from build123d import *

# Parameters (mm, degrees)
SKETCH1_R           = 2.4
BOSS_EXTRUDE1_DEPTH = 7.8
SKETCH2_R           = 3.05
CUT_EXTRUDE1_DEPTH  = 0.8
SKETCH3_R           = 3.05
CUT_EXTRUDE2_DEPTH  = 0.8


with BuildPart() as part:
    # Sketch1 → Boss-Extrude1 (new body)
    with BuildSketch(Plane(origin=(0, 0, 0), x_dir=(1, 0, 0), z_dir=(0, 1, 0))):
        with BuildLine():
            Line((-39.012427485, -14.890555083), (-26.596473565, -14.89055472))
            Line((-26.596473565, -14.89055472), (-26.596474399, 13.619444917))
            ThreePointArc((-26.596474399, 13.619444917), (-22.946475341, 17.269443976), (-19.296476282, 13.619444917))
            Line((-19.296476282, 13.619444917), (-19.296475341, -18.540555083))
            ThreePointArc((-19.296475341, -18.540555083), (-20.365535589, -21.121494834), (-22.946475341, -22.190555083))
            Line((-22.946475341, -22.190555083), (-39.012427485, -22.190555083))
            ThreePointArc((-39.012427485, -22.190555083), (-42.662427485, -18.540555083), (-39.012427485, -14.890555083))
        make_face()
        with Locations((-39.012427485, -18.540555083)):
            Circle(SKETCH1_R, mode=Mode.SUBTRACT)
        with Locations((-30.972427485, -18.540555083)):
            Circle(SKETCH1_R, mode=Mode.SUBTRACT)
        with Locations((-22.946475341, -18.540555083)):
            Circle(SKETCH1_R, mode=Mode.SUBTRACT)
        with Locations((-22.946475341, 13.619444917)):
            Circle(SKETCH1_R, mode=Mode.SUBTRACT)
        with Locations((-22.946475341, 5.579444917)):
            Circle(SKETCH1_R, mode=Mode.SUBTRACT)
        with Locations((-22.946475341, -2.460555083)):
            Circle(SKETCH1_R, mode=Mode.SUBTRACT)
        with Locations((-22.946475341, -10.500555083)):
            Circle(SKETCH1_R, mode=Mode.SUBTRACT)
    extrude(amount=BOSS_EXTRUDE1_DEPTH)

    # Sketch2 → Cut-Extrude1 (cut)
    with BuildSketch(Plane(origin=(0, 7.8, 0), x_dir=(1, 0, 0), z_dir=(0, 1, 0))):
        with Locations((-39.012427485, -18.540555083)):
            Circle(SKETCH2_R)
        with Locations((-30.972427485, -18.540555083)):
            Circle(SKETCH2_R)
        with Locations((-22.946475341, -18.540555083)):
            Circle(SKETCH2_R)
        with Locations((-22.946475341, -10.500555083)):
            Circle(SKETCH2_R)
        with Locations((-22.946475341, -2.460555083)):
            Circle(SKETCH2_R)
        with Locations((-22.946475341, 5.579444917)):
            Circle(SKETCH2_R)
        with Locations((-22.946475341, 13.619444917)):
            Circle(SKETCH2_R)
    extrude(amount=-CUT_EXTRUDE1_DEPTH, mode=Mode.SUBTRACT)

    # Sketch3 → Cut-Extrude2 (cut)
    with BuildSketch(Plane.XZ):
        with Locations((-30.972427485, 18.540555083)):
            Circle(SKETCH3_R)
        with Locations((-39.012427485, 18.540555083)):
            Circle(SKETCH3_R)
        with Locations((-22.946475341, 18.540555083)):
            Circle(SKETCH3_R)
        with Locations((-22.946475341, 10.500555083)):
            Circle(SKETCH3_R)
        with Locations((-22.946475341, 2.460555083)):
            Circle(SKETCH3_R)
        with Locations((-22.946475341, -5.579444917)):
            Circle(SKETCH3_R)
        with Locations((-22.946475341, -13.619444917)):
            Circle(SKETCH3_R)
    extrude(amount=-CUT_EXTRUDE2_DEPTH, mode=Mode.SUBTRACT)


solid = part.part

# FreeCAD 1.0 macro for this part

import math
import FreeCAD as App
import Part
import Sketcher

doc = App.newDocument("Part")
body = doc.addObject("PartDesign::Body", "Body")

# Sketch on XZ plane
sketch1 = doc.addObject("Sketcher::SketchObject", "Sketch")
body.addObject(sketch1)
sketch1.AttachmentSupport = (doc.XZ_Plane, [""])
sketch1.MapMode = "FlatFace"
sketch1.addGeometry([
    Part.LineSegment(App.Vector(-26.6, 14.9, 0), App.Vector(-39, 14.9, 0)),  # 0
    Part.ArcOfCircle(Part.Circle(App.Vector(-39, 18.5, 0), App.Vector(0, 0, 1), 3.6), math.radians(90), math.radians(270)),  # 1
    Part.LineSegment(App.Vector(-39, 22.2, 0), App.Vector(-22.9, 22.2, 0)),  # 2
    Part.ArcOfCircle(Part.Circle(App.Vector(-22.9, 18.5, 0), App.Vector(0, 0, 1), 3.6), math.radians(0), math.radians(90)),  # 3
    Part.LineSegment(App.Vector(-19.3, 18.5, 0), App.Vector(-19.3, -13.6, 0)),  # 4
    Part.ArcOfCircle(Part.Circle(App.Vector(-22.9, -13.6, 0), App.Vector(0, 0, 1), 3.6), math.radians(180), math.radians(360)),  # 5
    Part.LineSegment(App.Vector(-26.6, -13.6, 0), App.Vector(-26.6, 14.9, 0)),  # 6
    Part.Circle(App.Vector(-22.9, 18.5, 0), App.Vector(0, 0, 1), 2.4),  # 7
    Part.Circle(App.Vector(-31, 18.5, 0), App.Vector(0, 0, 1), 2.4),  # 8
    Part.Circle(App.Vector(-22.9, 10.5, 0), App.Vector(0, 0, 1), 2.4),  # 9
    Part.Circle(App.Vector(-39, 18.5, 0), App.Vector(0, 0, 1), 2.4),  # 10
    Part.Circle(App.Vector(-22.9, 2.5, 0), App.Vector(0, 0, 1), 2.4),  # 11
    Part.Circle(App.Vector(-22.9, -5.6, 0), App.Vector(0, 0, 1), 2.4),  # 12
    Part.Circle(App.Vector(-22.9, -13.6, 0), App.Vector(0, 0, 1), 2.4),  # 13
], False)
sketch1.addConstraint([
    Sketcher.Constraint("Tangent", 0, 2, 1, 2),
    Sketcher.Constraint("Tangent", 1, 1, 2, 1),
    Sketcher.Constraint("Tangent", 2, 2, 3, 2),
    Sketcher.Constraint("Tangent", 3, 1, 4, 1),
    Sketcher.Constraint("Tangent", 4, 2, 5, 2),
    Sketcher.Constraint("Tangent", 5, 1, 6, 1),
    Sketcher.Constraint("Coincident", 6, 2, 0, 1),
    Sketcher.Constraint("Horizontal", 0),
    Sketcher.Constraint("Horizontal", 2),
    Sketcher.Constraint("Vertical", 4),
    Sketcher.Constraint("Vertical", 6),
    Sketcher.Constraint("Coincident", 7, 3, 3, 3),
    Sketcher.Constraint("Coincident", 10, 3, 1, 3),
    Sketcher.Constraint("Coincident", 13, 3, 5, 3),
    Sketcher.Constraint("Equal", 1, 3),
    Sketcher.Constraint("Equal", 3, 5),
    Sketcher.Constraint("Equal", 7, 8),
    Sketcher.Constraint("Equal", 8, 9),
    Sketcher.Constraint("Equal", 9, 10),
    Sketcher.Constraint("Equal", 10, 11),
    Sketcher.Constraint("Equal", 11, 12),
    Sketcher.Constraint("Equal", 12, 13),
    Sketcher.Constraint("Horizontal", 7, 3, 8, 3),
    Sketcher.Constraint("Vertical", 7, 3, 9, 3),
    Sketcher.Constraint("Vertical", 9, 3, 11, 3),
    Sketcher.Constraint("Vertical", 11, 3, 12, 3),
    Sketcher.Constraint("Diameter", 7, 4.8),
    Sketcher.Constraint("Radius", 1, 3.65),
    Sketcher.Constraint("DistanceY", 4, 2, 4, 1, 32.16),
    Sketcher.Constraint("DistanceX", 1, 3, 8, 3, 8.04),
    Sketcher.Constraint("DistanceY", 9, 3, 7, 3, 8.04),
    Sketcher.Constraint("DistanceY", 11, 3, 9, 3, 8.04),
    Sketcher.Constraint("DistanceY", 12, 3, 11, 3, 8.04),
    Sketcher.Constraint("DistanceX", 0, 2, 0, 1, 12.415954),
    Sketcher.Constraint("DistanceX", 1, 3, -1, 1, 39.012427),
    Sketcher.Constraint("DistanceY", -1, 1, 1, 3, 18.540555),
])
pad1 = doc.addObject("PartDesign::Pad", "Pad")
body.addObject(pad1)
pad1.Profile = sketch1
pad1.Length = 7.8
pad1.Reversed = True

# Sketch on XZ plane
sketch2 = doc.addObject("Sketcher::SketchObject", "Sketch001")
body.addObject(sketch2)
sketch2.AttachmentSupport = (doc.XZ_Plane, [""])
sketch2.MapMode = "FlatFace"
sketch2.AttachmentOffset = App.Placement(App.Vector(0, 0, -7.8), App.Rotation())
sketch2.addGeometry([
    Part.Circle(App.Vector(-39, 18.5, 0), App.Vector(0, 0, 1), 3),  # 0
    Part.Circle(App.Vector(-31, 18.5, 0), App.Vector(0, 0, 1), 3),  # 1
    Part.Circle(App.Vector(-22.9, 18.5, 0), App.Vector(0, 0, 1), 3),  # 2
    Part.Circle(App.Vector(-22.9, 10.5, 0), App.Vector(0, 0, 1), 3),  # 3
    Part.Circle(App.Vector(-22.9, 2.5, 0), App.Vector(0, 0, 1), 3),  # 4
    Part.Circle(App.Vector(-22.9, -5.6, 0), App.Vector(0, 0, 1), 3),  # 5
    Part.Circle(App.Vector(-22.9, -13.6, 0), App.Vector(0, 0, 1), 3),  # 6
], False)
sketch2.addConstraint([
    Sketcher.Constraint("Equal", 0, 1),
    Sketcher.Constraint("Equal", 1, 2),
    Sketcher.Constraint("Equal", 2, 3),
    Sketcher.Constraint("Equal", 3, 4),
    Sketcher.Constraint("Equal", 4, 5),
    Sketcher.Constraint("Equal", 5, 6),
    Sketcher.Constraint("Horizontal", 0, 3, 1, 3),
    Sketcher.Constraint("Horizontal", 1, 3, 2, 3),
    Sketcher.Constraint("Vertical", 2, 3, 3, 3),
    Sketcher.Constraint("Vertical", 3, 3, 4, 3),
    Sketcher.Constraint("Vertical", 4, 3, 5, 3),
    Sketcher.Constraint("Vertical", 5, 3, 6, 3),
    Sketcher.Constraint("Diameter", 0, 6.1),
    Sketcher.Constraint("DistanceX", 0, 3, 1, 3, 8.04),
    Sketcher.Constraint("DistanceY", 3, 3, 2, 3, 8.04),
    Sketcher.Constraint("DistanceY", 4, 3, 3, 3, 8.04),
    Sketcher.Constraint("DistanceY", 5, 3, 4, 3, 8.04),
    Sketcher.Constraint("DistanceY", 6, 3, 5, 3, 8.04),
    Sketcher.Constraint("DistanceX", 0, 3, -1, 1, 39.012427),
    Sketcher.Constraint("DistanceY", -1, 1, 0, 3, 18.540555),
    Sketcher.Constraint("DistanceX", 2, 3, -1, 1, 22.946475),
])
pocket1 = doc.addObject("PartDesign::Pocket", "Pocket")
body.addObject(pocket1)
pocket1.Profile = sketch2
pocket1.Length = 0.8
pocket1.Reversed = True

# Sketch on XZ plane
sketch3 = doc.addObject("Sketcher::SketchObject", "Sketch002")
body.addObject(sketch3)
sketch3.AttachmentSupport = (doc.XZ_Plane, [""])
sketch3.MapMode = "FlatFace"
sketch3.addGeometry([
    Part.Circle(App.Vector(-31, 18.5, 0), App.Vector(0, 0, 1), 3),  # 0
    Part.Circle(App.Vector(-39, 18.5, 0), App.Vector(0, 0, 1), 3),  # 1
    Part.Circle(App.Vector(-22.9, 18.5, 0), App.Vector(0, 0, 1), 3),  # 2
    Part.Circle(App.Vector(-22.9, 10.5, 0), App.Vector(0, 0, 1), 3),  # 3
    Part.Circle(App.Vector(-22.9, 2.5, 0), App.Vector(0, 0, 1), 3),  # 4
    Part.Circle(App.Vector(-22.9, -5.6, 0), App.Vector(0, 0, 1), 3),  # 5
    Part.Circle(App.Vector(-22.9, -13.6, 0), App.Vector(0, 0, 1), 3),  # 6
], False)
sketch3.addConstraint([
    Sketcher.Constraint("Equal", 0, 1),
    Sketcher.Constraint("Equal", 1, 2),
    Sketcher.Constraint("Equal", 2, 3),
    Sketcher.Constraint("Equal", 3, 4),
    Sketcher.Constraint("Equal", 4, 5),
    Sketcher.Constraint("Equal", 5, 6),
    Sketcher.Constraint("Horizontal", 0, 3, 1, 3),
    Sketcher.Constraint("Horizontal", 1, 3, 2, 3),
    Sketcher.Constraint("Vertical", 2, 3, 3, 3),
    Sketcher.Constraint("Vertical", 3, 3, 4, 3),
    Sketcher.Constraint("Vertical", 4, 3, 5, 3),
    Sketcher.Constraint("Vertical", 5, 3, 6, 3),
    Sketcher.Constraint("Diameter", 0, 6.1),
    Sketcher.Constraint("DistanceX", 1, 3, 0, 3, 8.04),
    Sketcher.Constraint("DistanceY", 3, 3, 2, 3, 8.04),
    Sketcher.Constraint("DistanceY", 4, 3, 3, 3, 8.04),
    Sketcher.Constraint("DistanceY", 5, 3, 4, 3, 8.04),
    Sketcher.Constraint("DistanceY", 6, 3, 5, 3, 8.04),
    Sketcher.Constraint("DistanceX", 0, 3, -1, 1, 30.972427),
    Sketcher.Constraint("DistanceY", -1, 1, 0, 3, 18.540555),
    Sketcher.Constraint("DistanceX", 2, 3, -1, 1, 22.946475),
])
pocket2 = doc.addObject("PartDesign::Pocket", "Pocket001")
body.addObject(pocket2)
pocket2.Profile = sketch3
pocket2.Length = 0.8

doc.recompute()
